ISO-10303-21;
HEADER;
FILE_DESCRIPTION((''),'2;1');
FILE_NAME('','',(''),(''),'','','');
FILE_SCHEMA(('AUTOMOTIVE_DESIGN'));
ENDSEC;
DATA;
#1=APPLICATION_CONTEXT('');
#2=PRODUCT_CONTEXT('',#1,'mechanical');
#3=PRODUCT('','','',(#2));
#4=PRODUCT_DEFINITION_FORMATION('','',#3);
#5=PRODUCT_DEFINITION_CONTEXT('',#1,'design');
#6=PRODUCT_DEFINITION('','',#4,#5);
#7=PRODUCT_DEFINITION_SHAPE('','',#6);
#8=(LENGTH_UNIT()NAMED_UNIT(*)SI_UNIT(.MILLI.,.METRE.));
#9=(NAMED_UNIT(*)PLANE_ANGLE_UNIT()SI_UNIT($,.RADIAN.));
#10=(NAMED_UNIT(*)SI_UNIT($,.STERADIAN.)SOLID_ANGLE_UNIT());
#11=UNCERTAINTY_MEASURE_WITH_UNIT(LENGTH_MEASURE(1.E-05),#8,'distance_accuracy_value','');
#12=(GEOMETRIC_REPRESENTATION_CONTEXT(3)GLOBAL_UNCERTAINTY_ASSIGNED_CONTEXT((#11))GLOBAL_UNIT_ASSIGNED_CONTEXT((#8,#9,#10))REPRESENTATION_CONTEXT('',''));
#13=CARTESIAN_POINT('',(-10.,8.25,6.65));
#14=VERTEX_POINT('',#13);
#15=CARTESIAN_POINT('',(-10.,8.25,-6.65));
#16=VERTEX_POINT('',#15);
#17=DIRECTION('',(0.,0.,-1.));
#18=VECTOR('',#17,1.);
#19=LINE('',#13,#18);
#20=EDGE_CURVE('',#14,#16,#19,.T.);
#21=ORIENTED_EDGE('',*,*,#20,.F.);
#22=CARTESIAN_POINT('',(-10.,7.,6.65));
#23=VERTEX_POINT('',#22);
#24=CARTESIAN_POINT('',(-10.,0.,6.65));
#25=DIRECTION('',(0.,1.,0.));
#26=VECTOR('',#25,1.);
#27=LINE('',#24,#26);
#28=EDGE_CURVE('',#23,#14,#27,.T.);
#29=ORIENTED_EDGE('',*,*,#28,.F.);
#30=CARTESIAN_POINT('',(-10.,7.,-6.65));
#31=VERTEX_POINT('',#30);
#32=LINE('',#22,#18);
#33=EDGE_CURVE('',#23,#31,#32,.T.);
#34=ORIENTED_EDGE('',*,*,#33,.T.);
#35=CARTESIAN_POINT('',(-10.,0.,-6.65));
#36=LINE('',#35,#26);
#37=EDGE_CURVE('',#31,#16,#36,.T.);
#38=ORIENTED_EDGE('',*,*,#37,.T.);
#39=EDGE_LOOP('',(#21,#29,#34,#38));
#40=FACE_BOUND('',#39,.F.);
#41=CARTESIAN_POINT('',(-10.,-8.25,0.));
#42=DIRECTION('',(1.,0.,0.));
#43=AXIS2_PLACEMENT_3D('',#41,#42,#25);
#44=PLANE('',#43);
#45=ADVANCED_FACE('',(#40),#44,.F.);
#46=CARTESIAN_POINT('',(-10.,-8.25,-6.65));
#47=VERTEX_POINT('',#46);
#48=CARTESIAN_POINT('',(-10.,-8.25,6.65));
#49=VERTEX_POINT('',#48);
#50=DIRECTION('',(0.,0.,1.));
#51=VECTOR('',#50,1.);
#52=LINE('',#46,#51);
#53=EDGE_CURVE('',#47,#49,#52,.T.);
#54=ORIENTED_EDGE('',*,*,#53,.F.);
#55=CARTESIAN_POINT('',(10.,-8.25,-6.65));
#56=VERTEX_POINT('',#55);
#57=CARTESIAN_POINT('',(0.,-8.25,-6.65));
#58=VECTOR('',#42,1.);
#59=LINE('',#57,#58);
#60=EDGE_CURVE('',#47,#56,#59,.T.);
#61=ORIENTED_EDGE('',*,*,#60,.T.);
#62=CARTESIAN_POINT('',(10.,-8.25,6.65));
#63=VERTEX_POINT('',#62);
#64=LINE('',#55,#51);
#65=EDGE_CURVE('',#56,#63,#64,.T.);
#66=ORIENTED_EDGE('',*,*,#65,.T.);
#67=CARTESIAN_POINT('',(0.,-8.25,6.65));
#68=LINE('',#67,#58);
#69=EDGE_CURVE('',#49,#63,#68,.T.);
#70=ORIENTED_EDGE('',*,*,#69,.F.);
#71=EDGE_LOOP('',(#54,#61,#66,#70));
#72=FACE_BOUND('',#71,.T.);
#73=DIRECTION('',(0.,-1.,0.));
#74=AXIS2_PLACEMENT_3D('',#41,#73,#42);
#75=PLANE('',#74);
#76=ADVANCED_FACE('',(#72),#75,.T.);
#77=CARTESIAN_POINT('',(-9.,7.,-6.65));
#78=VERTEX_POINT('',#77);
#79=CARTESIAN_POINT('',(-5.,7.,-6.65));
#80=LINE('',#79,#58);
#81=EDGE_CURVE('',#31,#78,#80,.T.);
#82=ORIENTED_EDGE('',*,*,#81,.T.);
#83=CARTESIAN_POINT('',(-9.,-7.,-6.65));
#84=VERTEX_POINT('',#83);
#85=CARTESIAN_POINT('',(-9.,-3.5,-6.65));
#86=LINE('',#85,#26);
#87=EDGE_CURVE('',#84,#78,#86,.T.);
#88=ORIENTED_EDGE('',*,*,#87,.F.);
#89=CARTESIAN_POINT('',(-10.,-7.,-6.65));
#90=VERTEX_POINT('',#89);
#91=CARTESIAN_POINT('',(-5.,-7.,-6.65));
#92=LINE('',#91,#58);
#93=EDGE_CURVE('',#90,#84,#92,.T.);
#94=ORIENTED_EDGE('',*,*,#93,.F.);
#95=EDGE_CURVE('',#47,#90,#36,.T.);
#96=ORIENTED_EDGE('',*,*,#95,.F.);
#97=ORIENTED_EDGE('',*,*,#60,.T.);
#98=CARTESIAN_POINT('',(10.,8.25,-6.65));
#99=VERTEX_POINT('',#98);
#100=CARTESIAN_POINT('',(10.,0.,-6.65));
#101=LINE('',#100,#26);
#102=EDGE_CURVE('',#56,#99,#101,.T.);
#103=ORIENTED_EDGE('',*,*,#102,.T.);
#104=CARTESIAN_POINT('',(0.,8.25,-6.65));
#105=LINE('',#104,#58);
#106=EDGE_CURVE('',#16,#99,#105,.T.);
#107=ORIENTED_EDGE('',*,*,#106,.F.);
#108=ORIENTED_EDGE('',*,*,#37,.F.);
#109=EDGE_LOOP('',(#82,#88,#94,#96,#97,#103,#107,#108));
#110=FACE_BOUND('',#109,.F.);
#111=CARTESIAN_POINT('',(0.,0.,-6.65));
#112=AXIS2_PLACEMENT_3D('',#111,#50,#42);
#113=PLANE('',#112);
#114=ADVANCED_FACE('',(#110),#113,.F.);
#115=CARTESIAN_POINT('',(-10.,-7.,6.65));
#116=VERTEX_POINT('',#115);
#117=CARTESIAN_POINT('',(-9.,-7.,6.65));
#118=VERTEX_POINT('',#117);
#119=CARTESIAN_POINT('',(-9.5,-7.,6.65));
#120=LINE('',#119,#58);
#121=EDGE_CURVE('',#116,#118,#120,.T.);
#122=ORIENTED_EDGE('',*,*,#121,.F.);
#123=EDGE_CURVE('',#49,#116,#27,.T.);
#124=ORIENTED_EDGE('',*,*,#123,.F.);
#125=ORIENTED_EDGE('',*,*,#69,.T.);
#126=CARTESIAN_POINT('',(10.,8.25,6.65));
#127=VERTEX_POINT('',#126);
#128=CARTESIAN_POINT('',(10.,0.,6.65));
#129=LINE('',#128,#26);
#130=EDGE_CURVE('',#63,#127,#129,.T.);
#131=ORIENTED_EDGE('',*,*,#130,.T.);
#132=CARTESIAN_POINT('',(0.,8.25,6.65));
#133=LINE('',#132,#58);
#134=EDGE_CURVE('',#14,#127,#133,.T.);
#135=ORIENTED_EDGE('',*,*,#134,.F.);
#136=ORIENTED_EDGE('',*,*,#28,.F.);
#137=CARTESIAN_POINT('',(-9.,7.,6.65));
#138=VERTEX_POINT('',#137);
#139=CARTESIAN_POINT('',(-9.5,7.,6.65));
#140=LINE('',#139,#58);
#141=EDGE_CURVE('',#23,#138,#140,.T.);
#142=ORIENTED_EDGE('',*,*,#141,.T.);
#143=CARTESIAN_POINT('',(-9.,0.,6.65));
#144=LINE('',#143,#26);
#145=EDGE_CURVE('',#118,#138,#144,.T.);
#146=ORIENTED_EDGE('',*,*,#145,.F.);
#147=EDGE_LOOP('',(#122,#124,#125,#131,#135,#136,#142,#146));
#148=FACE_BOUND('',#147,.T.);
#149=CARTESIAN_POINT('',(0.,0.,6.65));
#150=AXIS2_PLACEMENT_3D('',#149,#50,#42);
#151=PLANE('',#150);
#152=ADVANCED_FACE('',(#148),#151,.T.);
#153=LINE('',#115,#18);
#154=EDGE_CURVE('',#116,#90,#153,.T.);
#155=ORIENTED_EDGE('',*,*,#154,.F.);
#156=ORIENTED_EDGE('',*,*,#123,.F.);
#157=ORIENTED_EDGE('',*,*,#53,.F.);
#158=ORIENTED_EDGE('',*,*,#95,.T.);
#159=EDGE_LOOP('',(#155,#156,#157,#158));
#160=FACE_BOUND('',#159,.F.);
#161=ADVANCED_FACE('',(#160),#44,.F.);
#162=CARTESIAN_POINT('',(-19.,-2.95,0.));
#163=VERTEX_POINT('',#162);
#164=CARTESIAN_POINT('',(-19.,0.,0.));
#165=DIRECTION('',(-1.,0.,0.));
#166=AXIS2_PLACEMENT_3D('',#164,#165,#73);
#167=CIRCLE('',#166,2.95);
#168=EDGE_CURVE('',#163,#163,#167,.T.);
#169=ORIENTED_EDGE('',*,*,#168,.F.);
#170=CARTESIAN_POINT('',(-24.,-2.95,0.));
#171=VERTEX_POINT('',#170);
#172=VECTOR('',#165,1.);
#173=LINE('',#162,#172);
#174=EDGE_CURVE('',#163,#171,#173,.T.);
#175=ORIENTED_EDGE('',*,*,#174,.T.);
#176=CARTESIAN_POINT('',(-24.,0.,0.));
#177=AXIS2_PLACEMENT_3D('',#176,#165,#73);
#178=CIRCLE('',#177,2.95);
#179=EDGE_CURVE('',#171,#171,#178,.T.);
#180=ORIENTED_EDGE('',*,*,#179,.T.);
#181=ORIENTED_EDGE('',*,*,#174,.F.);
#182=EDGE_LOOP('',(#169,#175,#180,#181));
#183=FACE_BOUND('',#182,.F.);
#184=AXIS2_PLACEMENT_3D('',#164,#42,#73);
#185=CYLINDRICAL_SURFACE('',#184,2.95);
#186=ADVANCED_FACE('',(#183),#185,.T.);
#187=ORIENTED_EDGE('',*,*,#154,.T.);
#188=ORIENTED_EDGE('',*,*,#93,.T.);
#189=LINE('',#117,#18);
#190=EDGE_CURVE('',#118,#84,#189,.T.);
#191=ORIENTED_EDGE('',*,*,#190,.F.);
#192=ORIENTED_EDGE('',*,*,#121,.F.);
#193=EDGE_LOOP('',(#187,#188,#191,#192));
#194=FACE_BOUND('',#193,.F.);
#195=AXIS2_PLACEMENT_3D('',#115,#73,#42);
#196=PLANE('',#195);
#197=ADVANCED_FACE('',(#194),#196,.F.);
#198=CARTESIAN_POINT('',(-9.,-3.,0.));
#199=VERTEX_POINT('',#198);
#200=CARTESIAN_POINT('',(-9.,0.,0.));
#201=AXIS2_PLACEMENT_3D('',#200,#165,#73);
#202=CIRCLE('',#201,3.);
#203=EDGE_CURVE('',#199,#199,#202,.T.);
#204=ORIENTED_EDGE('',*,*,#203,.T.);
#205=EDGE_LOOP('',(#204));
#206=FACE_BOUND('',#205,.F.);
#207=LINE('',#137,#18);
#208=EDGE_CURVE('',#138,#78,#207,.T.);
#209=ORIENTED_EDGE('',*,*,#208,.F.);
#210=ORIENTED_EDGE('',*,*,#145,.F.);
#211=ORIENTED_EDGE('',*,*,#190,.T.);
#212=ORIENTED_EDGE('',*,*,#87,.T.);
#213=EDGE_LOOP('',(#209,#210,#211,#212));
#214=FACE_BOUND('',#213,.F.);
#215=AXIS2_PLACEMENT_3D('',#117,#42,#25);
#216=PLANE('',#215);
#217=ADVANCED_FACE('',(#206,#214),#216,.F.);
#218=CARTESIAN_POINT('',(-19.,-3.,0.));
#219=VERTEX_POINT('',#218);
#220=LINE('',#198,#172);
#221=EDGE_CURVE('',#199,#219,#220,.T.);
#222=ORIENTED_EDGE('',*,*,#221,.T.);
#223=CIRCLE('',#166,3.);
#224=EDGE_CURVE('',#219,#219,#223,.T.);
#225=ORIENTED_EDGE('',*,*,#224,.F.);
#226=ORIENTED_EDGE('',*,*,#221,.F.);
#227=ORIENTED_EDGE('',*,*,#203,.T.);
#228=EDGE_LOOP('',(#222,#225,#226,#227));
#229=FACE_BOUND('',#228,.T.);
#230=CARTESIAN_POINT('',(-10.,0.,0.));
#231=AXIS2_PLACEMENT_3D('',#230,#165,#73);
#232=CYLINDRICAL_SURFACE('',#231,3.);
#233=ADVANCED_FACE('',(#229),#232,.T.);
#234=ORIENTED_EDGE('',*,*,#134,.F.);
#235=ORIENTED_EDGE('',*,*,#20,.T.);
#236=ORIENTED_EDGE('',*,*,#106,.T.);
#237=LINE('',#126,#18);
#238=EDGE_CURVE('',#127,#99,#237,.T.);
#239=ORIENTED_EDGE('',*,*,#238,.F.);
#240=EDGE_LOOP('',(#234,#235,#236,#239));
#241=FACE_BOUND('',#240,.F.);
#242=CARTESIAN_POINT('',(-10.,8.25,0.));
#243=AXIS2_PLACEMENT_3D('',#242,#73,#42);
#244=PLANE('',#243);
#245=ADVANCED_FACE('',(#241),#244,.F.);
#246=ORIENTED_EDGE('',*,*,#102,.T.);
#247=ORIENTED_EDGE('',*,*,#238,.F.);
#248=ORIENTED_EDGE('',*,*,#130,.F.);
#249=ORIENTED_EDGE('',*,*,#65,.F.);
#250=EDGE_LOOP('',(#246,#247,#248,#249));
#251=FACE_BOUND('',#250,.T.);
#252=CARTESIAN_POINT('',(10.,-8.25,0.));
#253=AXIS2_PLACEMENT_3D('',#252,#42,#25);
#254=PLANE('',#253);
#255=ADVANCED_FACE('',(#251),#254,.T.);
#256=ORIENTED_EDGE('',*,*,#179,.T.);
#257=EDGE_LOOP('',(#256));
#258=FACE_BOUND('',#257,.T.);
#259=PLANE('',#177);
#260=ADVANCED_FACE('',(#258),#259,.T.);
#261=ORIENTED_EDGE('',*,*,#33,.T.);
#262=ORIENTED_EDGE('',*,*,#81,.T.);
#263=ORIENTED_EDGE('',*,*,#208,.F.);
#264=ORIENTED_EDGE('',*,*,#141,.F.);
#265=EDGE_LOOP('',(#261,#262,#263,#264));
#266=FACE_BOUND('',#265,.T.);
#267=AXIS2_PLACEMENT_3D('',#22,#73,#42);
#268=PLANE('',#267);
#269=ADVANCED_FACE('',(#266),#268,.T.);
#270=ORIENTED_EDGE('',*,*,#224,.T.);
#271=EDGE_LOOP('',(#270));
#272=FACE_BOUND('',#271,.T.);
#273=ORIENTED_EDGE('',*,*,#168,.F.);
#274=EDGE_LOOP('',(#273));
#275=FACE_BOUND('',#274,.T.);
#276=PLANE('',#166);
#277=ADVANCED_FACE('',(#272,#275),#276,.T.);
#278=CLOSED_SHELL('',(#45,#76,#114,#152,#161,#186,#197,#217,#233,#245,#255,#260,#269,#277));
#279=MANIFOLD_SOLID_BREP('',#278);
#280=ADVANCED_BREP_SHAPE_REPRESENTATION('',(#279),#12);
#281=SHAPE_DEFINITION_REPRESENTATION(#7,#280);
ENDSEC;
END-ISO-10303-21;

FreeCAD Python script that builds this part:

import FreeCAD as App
import Part
import Sketcher
from FreeCAD import Vector


def add_polygon(sketch, points):
    """Adds a closed chain of lines whose ends are joined by coincident constraints."""
    first, n = sketch.GeometryCount, len(points)
    for a, b in zip(points, points[1:] + points[:1]):
        sketch.addGeometry(Part.LineSegment(App.Vector(*a, 0), App.Vector(*b, 0)), False)
    for i in range(n):
        sketch.addConstraint(Sketcher.Constraint("Coincident", first + i, 2, first + (i + 1) % n, 1))

doc = App.newDocument("Part")
body = doc.addObject("PartDesign::Body", "Body")

# Sketch on XY plane
sketch1 = body.newObject("Sketcher::SketchObject", "Sketch")
sketch1.AttachmentSupport = (doc.getObject("XY_Plane"), [""])
sketch1.MapMode = "FlatFace"
add_polygon(sketch1, [(-10, 8), (-10, -8), (10, -8), (10, 8)])  # lines 0-3
sketch1.addConstraint([
    Sketcher.Constraint("Vertical", 0),
    Sketcher.Constraint("Horizontal", 1),
    Sketcher.Constraint("Vertical", 2),
    Sketcher.Constraint("Horizontal", 3),
    Sketcher.Constraint("Symmetric", 0, 2, 2, 2, -1, 1),
    Sketcher.Constraint("DistanceX", 1, 1, 1, 2, 20.0),
    Sketcher.Constraint("DistanceY", 0, 2, 0, 1, 16.5),
])
pad1 = body.newObject("PartDesign::Pad", "Pad")
pad1.Profile = sketch1
pad1.Length = 13.3
pad1.Midplane = True

# Sketch on XY plane
sketch2 = body.newObject("Sketcher::SketchObject", "Sketch001")
sketch2.AttachmentSupport = (doc.getObject("XY_Plane"), [""])
sketch2.MapMode = "FlatFace"
sketch2.AttachmentOffset = App.Placement(Vector(0, 0, 6.65), App.Rotation())
add_polygon(sketch2, [(-10, 7), (-10, -7), (-9, -7), (-9, 7)])  # lines 0-3
sketch2.addConstraint([
    Sketcher.Constraint("Vertical", 0),
    Sketcher.Constraint("Horizontal", 1),
    Sketcher.Constraint("Vertical", 2),
    Sketcher.Constraint("Horizontal", 3),
    Sketcher.Constraint("DistanceX", 1, 1, 1, 2, 1.0),
    Sketcher.Constraint("DistanceY", 0, 2, 0, 1, 14.0),
    Sketcher.Constraint("DistanceX", 0, 2, -1, 1, 10.0),
    Sketcher.Constraint("DistanceY", 0, 2, -1, 1, 7.0),
])
pocket1 = body.newObject("PartDesign::Pocket", "Pocket")
pocket1.Profile = sketch2
pocket1.Type = "ThroughAll"

# Sketch on YZ plane
sketch3 = body.newObject("Sketcher::SketchObject", "Sketch002")
sketch3.AttachmentSupport = (doc.getObject("YZ_Plane"), [""])
sketch3.MapMode = "FlatFace"
sketch3.AttachmentOffset = App.Placement(Vector(0, 0, -10), App.Rotation())
sketch3.addGeometry(Part.Circle(Vector(0, 0, 0), Vector(0, 0, 1), 3), False)
sketch3.addConstraint([
    Sketcher.Constraint("Coincident", 0, 3, -1, 1),
    Sketcher.Constraint("Diameter", 0, 6.0),
])
pad2 = body.newObject("PartDesign::Pad", "Pad001")
pad2.Profile = sketch3
pad2.Type = "TwoLengths"
pad2.Length = 9
pad2.Length2 = 1
pad2.Reversed = True

# Sketch on YZ plane
sketch4 = body.newObject("Sketcher::SketchObject", "Sketch003")
sketch4.AttachmentSupport = (doc.getObject("YZ_Plane"), [""])
sketch4.MapMode = "FlatFace"
sketch4.AttachmentOffset = App.Placement(Vector(0, 0, -19), App.Rotation())
sketch4.addGeometry(Part.Circle(Vector(0, 0, 0), Vector(0, 0, 1), 3), False)
sketch4.addConstraint([
    Sketcher.Constraint("Coincident", 0, 3, -1, 1),
    Sketcher.Constraint("Diameter", 0, 5.9),
])
pad3 = body.newObject("PartDesign::Pad", "Pad002")
pad3.Profile = sketch4
pad3.Length = 5
pad3.Reversed = True

doc.recompute()
